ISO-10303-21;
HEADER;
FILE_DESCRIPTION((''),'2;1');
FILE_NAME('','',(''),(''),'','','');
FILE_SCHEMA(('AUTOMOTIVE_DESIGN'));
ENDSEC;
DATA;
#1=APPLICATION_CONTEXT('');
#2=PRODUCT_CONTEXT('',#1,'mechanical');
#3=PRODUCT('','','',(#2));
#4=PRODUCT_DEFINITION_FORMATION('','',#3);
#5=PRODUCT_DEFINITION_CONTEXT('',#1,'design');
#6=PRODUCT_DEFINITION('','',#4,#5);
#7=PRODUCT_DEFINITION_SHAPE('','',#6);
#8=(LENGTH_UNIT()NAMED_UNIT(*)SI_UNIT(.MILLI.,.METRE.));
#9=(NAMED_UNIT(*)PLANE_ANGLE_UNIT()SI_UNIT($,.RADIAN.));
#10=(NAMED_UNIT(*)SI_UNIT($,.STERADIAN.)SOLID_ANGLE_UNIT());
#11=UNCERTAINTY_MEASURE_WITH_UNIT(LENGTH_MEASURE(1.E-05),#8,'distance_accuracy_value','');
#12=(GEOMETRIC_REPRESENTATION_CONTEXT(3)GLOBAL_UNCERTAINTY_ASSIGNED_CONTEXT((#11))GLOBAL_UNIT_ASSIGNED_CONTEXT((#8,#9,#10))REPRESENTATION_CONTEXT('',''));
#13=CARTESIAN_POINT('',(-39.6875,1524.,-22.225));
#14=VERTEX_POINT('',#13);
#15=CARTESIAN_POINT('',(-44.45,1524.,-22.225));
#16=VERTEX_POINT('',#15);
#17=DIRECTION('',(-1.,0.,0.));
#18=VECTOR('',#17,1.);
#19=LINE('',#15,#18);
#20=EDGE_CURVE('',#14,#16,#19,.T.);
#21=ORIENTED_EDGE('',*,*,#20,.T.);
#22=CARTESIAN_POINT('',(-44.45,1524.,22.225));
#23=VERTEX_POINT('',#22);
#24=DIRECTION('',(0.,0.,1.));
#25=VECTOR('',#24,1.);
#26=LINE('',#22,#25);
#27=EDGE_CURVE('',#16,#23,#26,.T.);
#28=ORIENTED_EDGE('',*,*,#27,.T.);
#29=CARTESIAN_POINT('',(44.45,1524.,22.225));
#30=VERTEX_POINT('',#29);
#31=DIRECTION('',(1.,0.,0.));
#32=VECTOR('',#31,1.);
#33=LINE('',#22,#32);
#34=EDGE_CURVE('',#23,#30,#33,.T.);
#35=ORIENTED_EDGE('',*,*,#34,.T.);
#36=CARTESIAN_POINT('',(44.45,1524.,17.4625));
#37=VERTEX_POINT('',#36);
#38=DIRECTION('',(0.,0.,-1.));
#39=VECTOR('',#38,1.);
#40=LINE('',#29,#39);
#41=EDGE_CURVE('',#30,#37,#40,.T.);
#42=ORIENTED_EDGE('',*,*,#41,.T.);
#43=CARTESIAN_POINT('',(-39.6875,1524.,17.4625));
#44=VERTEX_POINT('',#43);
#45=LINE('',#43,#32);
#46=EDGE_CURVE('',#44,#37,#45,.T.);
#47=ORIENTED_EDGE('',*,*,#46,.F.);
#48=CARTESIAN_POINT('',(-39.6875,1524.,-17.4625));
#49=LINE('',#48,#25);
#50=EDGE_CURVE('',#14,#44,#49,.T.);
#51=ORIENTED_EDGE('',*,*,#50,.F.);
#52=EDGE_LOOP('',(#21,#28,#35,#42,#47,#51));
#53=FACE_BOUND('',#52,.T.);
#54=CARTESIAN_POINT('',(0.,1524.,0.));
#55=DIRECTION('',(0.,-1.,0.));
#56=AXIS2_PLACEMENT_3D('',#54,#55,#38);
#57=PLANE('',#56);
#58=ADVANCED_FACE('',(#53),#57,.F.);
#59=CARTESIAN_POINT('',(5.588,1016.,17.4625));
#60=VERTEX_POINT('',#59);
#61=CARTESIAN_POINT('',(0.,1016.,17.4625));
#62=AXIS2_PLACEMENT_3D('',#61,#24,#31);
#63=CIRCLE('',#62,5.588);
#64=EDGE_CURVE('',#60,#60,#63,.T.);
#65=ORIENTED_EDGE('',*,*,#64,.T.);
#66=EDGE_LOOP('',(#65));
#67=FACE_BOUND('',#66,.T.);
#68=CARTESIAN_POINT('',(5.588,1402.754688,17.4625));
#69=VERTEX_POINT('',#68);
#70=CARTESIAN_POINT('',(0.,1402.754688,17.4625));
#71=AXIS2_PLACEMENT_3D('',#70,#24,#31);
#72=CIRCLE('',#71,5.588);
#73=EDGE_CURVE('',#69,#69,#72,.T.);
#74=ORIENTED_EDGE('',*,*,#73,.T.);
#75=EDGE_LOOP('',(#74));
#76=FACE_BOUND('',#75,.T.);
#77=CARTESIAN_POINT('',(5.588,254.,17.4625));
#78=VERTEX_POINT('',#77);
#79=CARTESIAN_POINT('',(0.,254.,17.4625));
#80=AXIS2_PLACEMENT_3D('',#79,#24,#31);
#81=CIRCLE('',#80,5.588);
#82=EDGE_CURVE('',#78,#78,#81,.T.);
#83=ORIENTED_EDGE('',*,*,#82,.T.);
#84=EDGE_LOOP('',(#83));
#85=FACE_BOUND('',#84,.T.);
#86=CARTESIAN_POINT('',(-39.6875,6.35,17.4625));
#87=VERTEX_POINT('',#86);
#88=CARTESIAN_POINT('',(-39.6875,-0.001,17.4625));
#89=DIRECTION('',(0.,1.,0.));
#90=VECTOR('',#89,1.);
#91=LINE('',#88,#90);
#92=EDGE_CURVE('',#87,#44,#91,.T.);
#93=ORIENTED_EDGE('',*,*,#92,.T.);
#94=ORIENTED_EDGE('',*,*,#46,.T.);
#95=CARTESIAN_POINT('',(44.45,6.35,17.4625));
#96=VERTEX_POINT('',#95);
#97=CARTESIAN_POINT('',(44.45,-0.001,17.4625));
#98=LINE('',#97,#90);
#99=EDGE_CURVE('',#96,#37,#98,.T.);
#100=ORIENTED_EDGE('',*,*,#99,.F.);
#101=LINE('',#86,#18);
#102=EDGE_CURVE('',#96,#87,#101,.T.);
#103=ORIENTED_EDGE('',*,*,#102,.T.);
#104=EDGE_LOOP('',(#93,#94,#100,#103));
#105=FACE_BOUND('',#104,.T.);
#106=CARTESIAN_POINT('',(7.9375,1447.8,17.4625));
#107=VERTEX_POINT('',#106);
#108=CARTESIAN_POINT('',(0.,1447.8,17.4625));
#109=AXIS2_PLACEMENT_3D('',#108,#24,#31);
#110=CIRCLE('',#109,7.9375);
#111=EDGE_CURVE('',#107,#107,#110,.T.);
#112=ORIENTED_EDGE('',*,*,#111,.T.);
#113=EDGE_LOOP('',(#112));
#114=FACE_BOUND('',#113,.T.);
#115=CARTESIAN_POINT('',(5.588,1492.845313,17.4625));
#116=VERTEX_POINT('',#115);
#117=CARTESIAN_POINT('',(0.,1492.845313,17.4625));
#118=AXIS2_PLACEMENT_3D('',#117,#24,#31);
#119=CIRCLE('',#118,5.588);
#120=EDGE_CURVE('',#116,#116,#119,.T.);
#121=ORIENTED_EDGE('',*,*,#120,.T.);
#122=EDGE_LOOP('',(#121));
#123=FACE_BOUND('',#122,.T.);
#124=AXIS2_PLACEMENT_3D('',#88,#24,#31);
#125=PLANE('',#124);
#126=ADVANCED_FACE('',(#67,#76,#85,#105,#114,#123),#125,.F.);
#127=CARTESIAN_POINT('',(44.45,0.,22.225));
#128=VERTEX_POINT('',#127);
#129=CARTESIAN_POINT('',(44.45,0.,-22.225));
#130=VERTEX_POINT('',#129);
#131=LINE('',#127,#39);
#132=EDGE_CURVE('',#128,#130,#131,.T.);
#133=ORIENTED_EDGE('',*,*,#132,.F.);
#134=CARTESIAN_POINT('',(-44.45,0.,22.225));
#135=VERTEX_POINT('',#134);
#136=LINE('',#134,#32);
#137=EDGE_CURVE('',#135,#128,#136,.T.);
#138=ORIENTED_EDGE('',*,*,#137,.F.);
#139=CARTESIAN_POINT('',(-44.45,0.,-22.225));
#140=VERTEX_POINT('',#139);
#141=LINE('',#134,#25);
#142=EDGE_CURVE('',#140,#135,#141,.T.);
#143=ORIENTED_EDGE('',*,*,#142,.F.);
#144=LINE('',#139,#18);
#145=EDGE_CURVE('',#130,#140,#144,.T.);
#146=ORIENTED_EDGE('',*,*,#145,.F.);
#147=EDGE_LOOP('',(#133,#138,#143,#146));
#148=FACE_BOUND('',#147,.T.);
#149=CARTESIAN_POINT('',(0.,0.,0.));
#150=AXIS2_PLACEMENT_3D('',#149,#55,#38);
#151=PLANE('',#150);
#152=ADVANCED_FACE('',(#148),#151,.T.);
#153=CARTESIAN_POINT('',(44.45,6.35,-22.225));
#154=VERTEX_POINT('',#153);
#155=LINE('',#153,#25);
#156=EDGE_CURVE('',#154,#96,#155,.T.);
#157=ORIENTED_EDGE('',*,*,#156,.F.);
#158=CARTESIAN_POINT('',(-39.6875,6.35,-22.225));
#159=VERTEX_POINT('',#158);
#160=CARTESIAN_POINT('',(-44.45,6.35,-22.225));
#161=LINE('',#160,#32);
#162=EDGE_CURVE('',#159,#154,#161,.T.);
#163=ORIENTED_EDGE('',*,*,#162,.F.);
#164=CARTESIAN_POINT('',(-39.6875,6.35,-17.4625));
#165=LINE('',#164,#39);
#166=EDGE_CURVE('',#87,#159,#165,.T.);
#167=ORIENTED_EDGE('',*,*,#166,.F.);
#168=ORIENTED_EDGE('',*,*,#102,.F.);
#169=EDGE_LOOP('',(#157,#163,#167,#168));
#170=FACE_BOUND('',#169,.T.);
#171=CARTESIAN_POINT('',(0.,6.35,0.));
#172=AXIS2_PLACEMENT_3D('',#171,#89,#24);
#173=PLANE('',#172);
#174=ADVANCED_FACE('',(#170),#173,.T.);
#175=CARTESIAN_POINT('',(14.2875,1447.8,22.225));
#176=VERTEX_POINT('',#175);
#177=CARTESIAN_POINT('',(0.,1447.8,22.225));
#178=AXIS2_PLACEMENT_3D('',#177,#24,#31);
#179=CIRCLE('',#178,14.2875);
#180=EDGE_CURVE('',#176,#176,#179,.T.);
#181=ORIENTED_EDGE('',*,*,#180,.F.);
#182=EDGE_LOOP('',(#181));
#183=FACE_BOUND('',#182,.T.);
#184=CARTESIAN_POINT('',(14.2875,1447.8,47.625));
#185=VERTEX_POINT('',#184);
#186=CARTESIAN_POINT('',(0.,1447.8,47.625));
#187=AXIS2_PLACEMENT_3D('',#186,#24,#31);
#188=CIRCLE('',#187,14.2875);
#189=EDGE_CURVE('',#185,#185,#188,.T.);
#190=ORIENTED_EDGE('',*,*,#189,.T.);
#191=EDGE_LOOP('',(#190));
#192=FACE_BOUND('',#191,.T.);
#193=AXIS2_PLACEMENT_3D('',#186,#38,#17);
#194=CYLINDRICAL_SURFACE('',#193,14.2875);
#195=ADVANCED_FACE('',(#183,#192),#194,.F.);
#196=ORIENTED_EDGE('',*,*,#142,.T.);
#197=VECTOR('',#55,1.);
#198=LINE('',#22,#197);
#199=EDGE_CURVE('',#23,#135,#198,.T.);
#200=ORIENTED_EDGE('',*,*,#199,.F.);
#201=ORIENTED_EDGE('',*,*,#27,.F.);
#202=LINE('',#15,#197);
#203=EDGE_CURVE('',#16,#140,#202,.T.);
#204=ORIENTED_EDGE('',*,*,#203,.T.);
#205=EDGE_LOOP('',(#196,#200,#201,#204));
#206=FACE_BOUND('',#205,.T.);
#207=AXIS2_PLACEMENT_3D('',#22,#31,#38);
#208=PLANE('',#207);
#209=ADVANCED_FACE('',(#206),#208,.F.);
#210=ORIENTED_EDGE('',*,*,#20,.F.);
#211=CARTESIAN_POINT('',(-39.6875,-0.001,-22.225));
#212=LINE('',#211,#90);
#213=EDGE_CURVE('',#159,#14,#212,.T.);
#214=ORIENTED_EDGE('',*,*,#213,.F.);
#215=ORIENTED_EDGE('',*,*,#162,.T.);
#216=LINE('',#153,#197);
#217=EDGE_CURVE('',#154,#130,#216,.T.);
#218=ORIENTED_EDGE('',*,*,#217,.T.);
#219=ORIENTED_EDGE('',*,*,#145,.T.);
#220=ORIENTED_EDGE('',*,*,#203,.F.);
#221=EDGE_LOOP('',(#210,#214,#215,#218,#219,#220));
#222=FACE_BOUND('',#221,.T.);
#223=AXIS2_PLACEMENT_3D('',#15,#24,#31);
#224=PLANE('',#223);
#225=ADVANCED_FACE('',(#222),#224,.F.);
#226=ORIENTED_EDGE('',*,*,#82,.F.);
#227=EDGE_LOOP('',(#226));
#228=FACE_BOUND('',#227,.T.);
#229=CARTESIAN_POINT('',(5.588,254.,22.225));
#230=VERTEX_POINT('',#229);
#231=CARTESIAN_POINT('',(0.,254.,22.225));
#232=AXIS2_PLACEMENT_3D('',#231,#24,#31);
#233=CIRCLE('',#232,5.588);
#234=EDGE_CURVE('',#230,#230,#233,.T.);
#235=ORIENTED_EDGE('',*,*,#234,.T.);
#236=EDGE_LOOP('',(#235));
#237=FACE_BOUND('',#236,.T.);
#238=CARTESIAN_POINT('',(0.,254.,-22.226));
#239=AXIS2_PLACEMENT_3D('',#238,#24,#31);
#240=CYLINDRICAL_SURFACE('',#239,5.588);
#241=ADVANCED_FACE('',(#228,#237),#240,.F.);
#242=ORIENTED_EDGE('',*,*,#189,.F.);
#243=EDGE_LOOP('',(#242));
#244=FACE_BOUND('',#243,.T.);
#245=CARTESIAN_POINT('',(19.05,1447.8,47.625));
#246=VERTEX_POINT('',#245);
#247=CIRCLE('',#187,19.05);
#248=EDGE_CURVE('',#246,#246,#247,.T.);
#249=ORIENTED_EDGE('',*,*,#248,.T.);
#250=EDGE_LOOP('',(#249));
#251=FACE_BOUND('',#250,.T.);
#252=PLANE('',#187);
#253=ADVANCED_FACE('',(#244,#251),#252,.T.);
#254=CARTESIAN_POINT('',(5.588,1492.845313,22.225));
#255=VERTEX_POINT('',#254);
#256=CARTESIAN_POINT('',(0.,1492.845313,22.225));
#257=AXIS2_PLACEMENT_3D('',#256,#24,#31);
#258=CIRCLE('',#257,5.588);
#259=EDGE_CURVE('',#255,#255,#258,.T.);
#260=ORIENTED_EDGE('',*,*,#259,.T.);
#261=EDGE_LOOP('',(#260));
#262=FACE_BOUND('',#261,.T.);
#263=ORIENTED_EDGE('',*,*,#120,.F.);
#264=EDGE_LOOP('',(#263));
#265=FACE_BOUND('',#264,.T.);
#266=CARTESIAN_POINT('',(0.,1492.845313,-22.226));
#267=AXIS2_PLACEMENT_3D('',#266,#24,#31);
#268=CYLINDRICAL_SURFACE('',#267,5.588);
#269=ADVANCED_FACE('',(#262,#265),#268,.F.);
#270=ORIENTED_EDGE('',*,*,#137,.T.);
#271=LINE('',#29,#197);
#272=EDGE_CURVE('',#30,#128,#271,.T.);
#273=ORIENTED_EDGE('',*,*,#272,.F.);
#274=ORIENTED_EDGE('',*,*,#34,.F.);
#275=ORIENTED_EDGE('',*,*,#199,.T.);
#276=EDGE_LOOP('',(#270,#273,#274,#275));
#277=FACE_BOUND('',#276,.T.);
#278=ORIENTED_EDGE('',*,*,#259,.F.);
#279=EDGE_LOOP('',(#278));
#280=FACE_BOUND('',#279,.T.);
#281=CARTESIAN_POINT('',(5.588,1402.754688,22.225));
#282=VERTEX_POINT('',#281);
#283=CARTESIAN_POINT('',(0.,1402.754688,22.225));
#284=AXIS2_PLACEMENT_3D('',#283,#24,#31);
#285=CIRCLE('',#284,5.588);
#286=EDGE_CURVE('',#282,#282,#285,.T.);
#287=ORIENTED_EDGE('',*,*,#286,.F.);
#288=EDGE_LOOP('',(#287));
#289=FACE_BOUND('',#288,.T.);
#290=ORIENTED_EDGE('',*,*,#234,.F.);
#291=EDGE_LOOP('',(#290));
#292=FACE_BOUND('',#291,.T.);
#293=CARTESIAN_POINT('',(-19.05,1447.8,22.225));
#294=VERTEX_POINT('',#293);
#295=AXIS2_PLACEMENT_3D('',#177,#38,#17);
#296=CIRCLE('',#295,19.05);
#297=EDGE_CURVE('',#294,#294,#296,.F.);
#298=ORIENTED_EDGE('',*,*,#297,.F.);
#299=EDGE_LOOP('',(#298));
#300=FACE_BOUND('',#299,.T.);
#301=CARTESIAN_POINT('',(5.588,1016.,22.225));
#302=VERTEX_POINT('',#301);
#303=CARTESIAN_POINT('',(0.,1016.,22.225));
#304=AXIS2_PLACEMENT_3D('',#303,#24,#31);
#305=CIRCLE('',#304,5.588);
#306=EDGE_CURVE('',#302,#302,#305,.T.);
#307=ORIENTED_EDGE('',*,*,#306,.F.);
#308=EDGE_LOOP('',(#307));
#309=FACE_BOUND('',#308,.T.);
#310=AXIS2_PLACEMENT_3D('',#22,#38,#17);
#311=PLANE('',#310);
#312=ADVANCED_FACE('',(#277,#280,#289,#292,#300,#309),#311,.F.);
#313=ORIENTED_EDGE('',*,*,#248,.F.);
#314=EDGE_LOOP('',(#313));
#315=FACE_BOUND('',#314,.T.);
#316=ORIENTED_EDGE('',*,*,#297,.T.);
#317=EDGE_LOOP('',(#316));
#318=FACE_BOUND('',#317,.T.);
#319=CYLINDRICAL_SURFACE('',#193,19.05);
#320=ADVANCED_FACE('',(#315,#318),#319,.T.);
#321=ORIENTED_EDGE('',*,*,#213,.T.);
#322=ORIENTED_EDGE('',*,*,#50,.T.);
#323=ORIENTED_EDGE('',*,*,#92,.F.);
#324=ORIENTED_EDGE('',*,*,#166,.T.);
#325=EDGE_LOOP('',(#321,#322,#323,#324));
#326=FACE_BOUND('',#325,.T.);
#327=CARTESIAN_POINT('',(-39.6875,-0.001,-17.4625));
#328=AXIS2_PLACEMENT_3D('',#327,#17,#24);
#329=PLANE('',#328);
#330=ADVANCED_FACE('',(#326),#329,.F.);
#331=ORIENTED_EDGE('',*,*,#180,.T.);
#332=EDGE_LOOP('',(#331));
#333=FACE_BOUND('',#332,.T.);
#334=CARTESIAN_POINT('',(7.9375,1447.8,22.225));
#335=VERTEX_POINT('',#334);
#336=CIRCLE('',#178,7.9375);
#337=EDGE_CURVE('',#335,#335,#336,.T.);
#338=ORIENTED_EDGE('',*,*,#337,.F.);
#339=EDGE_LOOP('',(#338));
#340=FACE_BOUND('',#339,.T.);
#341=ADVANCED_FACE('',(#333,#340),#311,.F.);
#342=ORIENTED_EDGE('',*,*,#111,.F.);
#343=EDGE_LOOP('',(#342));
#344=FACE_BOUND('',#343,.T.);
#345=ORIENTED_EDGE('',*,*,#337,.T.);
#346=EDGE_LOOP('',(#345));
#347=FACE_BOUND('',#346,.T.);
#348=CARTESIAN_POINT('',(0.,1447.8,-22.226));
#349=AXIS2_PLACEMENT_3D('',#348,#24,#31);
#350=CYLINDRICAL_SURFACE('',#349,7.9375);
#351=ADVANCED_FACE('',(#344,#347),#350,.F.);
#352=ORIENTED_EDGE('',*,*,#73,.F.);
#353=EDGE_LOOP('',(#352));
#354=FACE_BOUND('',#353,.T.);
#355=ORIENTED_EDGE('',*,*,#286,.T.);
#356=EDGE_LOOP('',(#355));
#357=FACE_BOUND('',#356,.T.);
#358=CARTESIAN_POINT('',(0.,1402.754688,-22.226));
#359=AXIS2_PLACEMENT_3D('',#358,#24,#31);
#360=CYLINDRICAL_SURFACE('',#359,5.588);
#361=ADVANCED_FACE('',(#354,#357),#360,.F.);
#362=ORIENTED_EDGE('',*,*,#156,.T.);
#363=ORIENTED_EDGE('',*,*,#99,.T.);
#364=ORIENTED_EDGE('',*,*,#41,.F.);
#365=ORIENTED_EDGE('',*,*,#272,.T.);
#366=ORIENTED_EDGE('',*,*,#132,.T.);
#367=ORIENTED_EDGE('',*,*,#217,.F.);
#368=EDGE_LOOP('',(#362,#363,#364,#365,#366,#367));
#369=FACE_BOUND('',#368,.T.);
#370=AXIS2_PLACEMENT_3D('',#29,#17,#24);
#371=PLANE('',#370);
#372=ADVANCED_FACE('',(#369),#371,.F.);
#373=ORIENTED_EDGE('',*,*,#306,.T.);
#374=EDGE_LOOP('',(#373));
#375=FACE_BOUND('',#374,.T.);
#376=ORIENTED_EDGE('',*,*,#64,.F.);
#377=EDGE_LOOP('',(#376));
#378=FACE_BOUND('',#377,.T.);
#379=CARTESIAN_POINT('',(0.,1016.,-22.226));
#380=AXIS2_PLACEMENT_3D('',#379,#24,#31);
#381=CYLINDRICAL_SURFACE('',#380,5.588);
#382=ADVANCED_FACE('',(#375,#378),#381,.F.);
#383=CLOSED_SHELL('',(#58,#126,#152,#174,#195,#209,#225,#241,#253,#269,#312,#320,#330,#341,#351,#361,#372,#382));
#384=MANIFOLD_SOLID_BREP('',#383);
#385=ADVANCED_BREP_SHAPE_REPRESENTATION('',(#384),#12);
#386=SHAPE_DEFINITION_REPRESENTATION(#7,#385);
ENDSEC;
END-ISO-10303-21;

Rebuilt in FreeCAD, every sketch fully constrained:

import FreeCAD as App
import Part
import Sketcher

V = App.Vector
Q = App.Units.Quantity

doc = App.newDocument("Part")
body = doc.addObject("PartDesign::Body", "Body")

# Sketch on XZ plane
sketch1 = body.newObject("Sketcher::SketchObject", "Sketch")
sketch1.AttachmentSupport = (doc.getObject("XZ_Plane"), [""])
sketch1.MapMode = "FlatFace"
sketch1.addGeometry([
    Part.LineSegment(V(-44, -22, 0), V(-44, 22, 0)),
    Part.LineSegment(V(-44, 22, 0), V(44, 22, 0)),
    Part.LineSegment(V(44, 22, 0), V(44, -22, 0)),
    Part.LineSegment(V(44, -22, 0), V(-44, -22, 0)),
], False)
sketch1.addConstraint([
    Sketcher.Constraint("Coincident", 0, 2, 1, 1),
    Sketcher.Constraint("Coincident", 1, 2, 2, 1),
    Sketcher.Constraint("Coincident", 2, 2, 3, 1),
    Sketcher.Constraint("Coincident", 3, 2, 0, 1),
    Sketcher.Constraint("Vertical", 0),
    Sketcher.Constraint("Horizontal", 1),
    Sketcher.Constraint("Vertical", 2),
    Sketcher.Constraint("Horizontal", 3),
    Sketcher.Constraint("Symmetric", 0, 2, 2, 2, -1, 1),
    Sketcher.Constraint("DistanceX", 1, 1, 1, 2, Q("3.5 in")),
    Sketcher.Constraint("DistanceY", 0, 1, 0, 2, Q("1.75 in")),
])
pad1 = body.newObject("PartDesign::Pad", "Pad")
pad1.Profile = sketch1
pad1.Length = Q("60 in")
pad1.Reversed = True

# Sketch on XY plane
sketch2 = body.newObject("Sketcher::SketchObject", "Sketch001")
sketch2.AttachmentSupport = (doc.getObject("XY_Plane"), [""])
sketch2.MapMode = "FlatFace"
sketch2.AttachmentOffset = App.Placement(V(0, 0, 0.875 * 25.4), App.Rotation())
sketch2.addGeometry(Part.Circle(V(0, 1448, 0), V(0, 0, 1), 8), False)
sketch2.addConstraint([
    Sketcher.Constraint("PointOnObject", 0, 3, -2),
    Sketcher.Constraint("Diameter", 0, Q("0.625 in")),
    Sketcher.Constraint("DistanceY", -1, 1, 0, 3, Q("57 in")),
])
pocket1 = body.newObject("PartDesign::Pocket", "Pocket")
pocket1.Profile = sketch2
pocket1.Type = "UpToFirst"

# Sketch on XY plane
sketch3 = body.newObject("Sketcher::SketchObject", "Sketch002")
sketch3.AttachmentSupport = (doc.getObject("XY_Plane"), [""])
sketch3.MapMode = "FlatFace"
sketch3.AttachmentOffset = App.Placement(V(0, 0, 0.875 * 25.4), App.Rotation())
sketch3.addGeometry(Part.Circle(V(0, 1016, 0), V(0, 0, 1), 6), False)
sketch3.addConstraint([
    Sketcher.Constraint("PointOnObject", 0, 3, -2),
    Sketcher.Constraint("Diameter", 0, Q("0.44 in")),
    Sketcher.Constraint("DistanceY", -1, 1, 0, 3, Q("40 in")),
])
pocket2 = body.newObject("PartDesign::Pocket", "Pocket001")
pocket2.Profile = sketch3
pocket2.Type = "UpToFirst"

# Sketch on XY plane
sketch4 = body.newObject("Sketcher::SketchObject", "Sketch003")
sketch4.AttachmentSupport = (doc.getObject("XY_Plane"), [""])
sketch4.MapMode = "FlatFace"
sketch4.AttachmentOffset = App.Placement(V(0, 0, 0.875 * 25.4), App.Rotation())
sketch4.addGeometry(Part.Circle(V(0, 254, 0), V(0, 0, 1), 6), False)
sketch4.addConstraint([
    Sketcher.Constraint("PointOnObject", 0, 3, -2),
    Sketcher.Constraint("Diameter", 0, Q("0.44 in")),
    Sketcher.Constraint("DistanceY", -1, 1, 0, 3, Q("10 in")),
])
pocket3 = body.newObject("PartDesign::Pocket", "Pocket002")
pocket3.Profile = sketch4
pocket3.Type = "UpToFirst"

# Sketch on XY plane
sketch5 = body.newObject("Sketcher::SketchObject", "Sketch004")
sketch5.AttachmentSupport = (doc.getObject("XY_Plane"), [""])
sketch5.MapMode = "FlatFace"
sketch5.AttachmentOffset = App.Placement(V(0, 0, 0.875 * 25.4), App.Rotation())
sketch5.addGeometry(Part.Circle(V(0, 1493, 0), V(0, 0, 1), 6), False)
sketch5.addConstraint([
    Sketcher.Constraint("PointOnObject", 0, 3, -2),
    Sketcher.Constraint("Diameter", 0, Q("0.44 in")),
    Sketcher.Constraint("DistanceY", -1, 1, 0, 3, Q("1492.845313 mm")),
])
pocket4 = body.newObject("PartDesign::Pocket", "Pocket003")
pocket4.Profile = sketch5
pocket4.Type = "UpToFirst"

# Sketch on XY plane
sketch6 = body.newObject("Sketcher::SketchObject", "Sketch005")
sketch6.AttachmentSupport = (doc.getObject("XY_Plane"), [""])
sketch6.MapMode = "FlatFace"
sketch6.AttachmentOffset = App.Placement(V(0, 0, 0.875 * 25.4), App.Rotation())
sketch6.addGeometry(Part.Circle(V(0, 1403, 0), V(0, 0, 1), 6), False)
sketch6.addConstraint([
    Sketcher.Constraint("PointOnObject", 0, 3, -2),
    Sketcher.Constraint("Diameter", 0, Q("0.44 in")),
    Sketcher.Constraint("DistanceY", -1, 1, 0, 3, Q("1402.754688 mm")),
])
pocket5 = body.newObject("PartDesign::Pocket", "Pocket004")
pocket5.Profile = sketch6
pocket5.Type = "UpToFirst"

# Sketch on XY plane
sketch7 = body.newObject("Sketcher::SketchObject", "Sketch006")
sketch7.AttachmentSupport = (doc.getObject("XY_Plane"), [""])
sketch7.MapMode = "FlatFace"
sketch7.AttachmentOffset = App.Placement(V(0, 0, 0.875 * 25.4), App.Rotation())
sketch7.addGeometry([
    Part.Circle(V(0, 1448, 0), V(0, 0, 1), 19),
    Part.Circle(V(0, 1448, 0), V(0, 0, 1), 14),
], False)
sketch7.addConstraint([
    Sketcher.Constraint("Coincident", 1, 3, 0, 3),
    Sketcher.Constraint("PointOnObject", 0, 3, -2),
    Sketcher.Constraint("Diameter", 0, Q("1.5 in")),
    Sketcher.Constraint("Diameter", 1, Q("1.125 in")),
    Sketcher.Constraint("DistanceY", -1, 1, 0, 3, Q("57 in")),
])
pad2 = body.newObject("PartDesign::Pad", "Pad001")
pad2.Profile = sketch7
pad2.Length = Q("1 in")

# Sketch on XZ plane
sketch8 = body.newObject("Sketcher::SketchObject", "Sketch007")
sketch8.AttachmentSupport = (doc.getObject("XZ_Plane"), [""])
sketch8.MapMode = "FlatFace"
sketch8.AttachmentOffset = App.Placement(V(0, 0, -60 * 25.4), App.Rotation())
sketch8.addGeometry([
    Part.LineSegment(V(-40, -22, 0), V(-40, 17, 0)),
    Part.LineSegment(V(-40, 17, 0), V(44, 17, 0)),
    Part.LineSegment(V(44, 17, 0), V(44, -22, 0)),
    Part.LineSegment(V(44, -22, 0), V(-40, -22, 0)),
], False)
sketch8.addConstraint([
    Sketcher.Constraint("Coincident", 0, 2, 1, 1),
    Sketcher.Constraint("Coincident", 1, 2, 2, 1),
    Sketcher.Constraint("Coincident", 2, 2, 3, 1),
    Sketcher.Constraint("Coincident", 3, 2, 0, 1),
    Sketcher.Constraint("Vertical", 0),
    Sketcher.Constraint("Horizontal", 1),
    Sketcher.Constraint("Vertical", 2),
    Sketcher.Constraint("Horizontal", 3),
    Sketcher.Constraint("DistanceX", 1, 1, 1, 2, Q("3.3125 in")),
    Sketcher.Constraint("DistanceY", 0, 1, 0, 2, Q("1.5625 in")),
    Sketcher.Constraint("DistanceX", -1, 1, 1, 2, Q("1.75 in")),
    Sketcher.Constraint("DistanceY", -1, 1, 0, 2, Q("0.6875 in")),
])
pocket6 = body.newObject("PartDesign::Pocket", "Pocket005")
pocket6.Profile = sketch8
pocket6.Type = "UpToFirst"
pocket6.Reversed = True

# Sketch on XZ plane
sketch9 = body.newObject("Sketcher::SketchObject", "Sketch008")
sketch9.AttachmentSupport = (doc.getObject("XZ_Plane"), [""])
sketch9.MapMode = "FlatFace"
sketch9.addGeometry([
    Part.LineSegment(V(-44, 22, 0), V(-44, -22, 0)),
    Part.LineSegment(V(-44, -22, 0), V(44, -22, 0)),
    Part.LineSegment(V(44, -22, 0), V(44, 22, 0)),
    Part.LineSegment(V(44, 22, 0), V(-44, 22, 0)),
], False)
sketch9.addConstraint([
    Sketcher.Constraint("Coincident", 0, 2, 1, 1),
    Sketcher.Constraint("Coincident", 1, 2, 2, 1),
    Sketcher.Constraint("Coincident", 2, 2, 3, 1),
    Sketcher.Constraint("Coincident", 3, 2, 0, 1),
    Sketcher.Constraint("Vertical", 0),
    Sketcher.Constraint("Horizontal", 1),
    Sketcher.Constraint("Vertical", 2),
    Sketcher.Constraint("Horizontal", 3),
    Sketcher.Constraint("Symmetric", 0, 2, 2, 2, -1, 1),
    Sketcher.Constraint("DistanceX", 1, 1, 1, 2, Q("3.5 in")),
    Sketcher.Constraint("DistanceY", 0, 2, 0, 1, Q("1.75 in")),
])
pad3 = body.newObject("PartDesign::Pad", "Pad002")
pad3.Profile = sketch9
pad3.Length = Q("0.25 in")
pad3.Reversed = True

doc.recompute()
